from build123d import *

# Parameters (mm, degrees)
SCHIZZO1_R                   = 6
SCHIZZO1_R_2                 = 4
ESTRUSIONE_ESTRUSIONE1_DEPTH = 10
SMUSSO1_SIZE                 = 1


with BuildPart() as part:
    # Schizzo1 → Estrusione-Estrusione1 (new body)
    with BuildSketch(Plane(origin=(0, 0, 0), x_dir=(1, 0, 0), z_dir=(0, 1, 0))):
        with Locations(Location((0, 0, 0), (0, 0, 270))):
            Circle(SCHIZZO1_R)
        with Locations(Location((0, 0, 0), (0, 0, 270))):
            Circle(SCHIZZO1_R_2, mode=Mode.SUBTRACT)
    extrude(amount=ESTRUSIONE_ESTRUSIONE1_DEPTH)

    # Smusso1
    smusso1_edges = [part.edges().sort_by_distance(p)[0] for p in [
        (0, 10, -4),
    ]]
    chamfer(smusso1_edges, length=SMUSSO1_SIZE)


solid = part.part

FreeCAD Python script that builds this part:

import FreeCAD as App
import Part
import Sketcher

V = App.Vector
Q = App.Units.Quantity


def edges_at(feature, points):
    """Names of the edges that pass closest to the given points."""
    edges = feature.Shape.Edges
    near = lambda p: min(range(len(edges)), key=lambda i: edges[i].distToShape(Part.Vertex(*p))[0])
    return sorted({f"Edge{near(p) + 1}" for p in points})

doc = App.newDocument("Part")
body = doc.addObject("PartDesign::Body", "Body")

sketch1 = body.newObject("Sketcher::SketchObject", "Sketch")
sketch1.AttachmentSupport = (doc.getObject("XZ_Plane"), [""])
sketch1.MapMode = "FlatFace"
sketch1.addGeometry([
    Part.Circle(V(0, 0, 0), V(0, 0, 1), 6),
    Part.Circle(V(0, 0, 0), V(0, 0, 1), 4),
], False)
sketch1.addConstraint([
    Sketcher.Constraint("Coincident", 0, 3, -1, 1),
    Sketcher.Constraint("Coincident", 1, 3, -1, 1),
    Sketcher.Constraint("Diameter", 0, Q("12 mm")),
    Sketcher.Constraint("Diameter", 1, Q("8 mm")),
])
pad1 = body.newObject("PartDesign::Pad", "Pad")
pad1.Profile = sketch1
pad1.Length = 10
pad1.Reversed = True
doc.recompute()

chamfer = body.newObject("PartDesign::Chamfer", "Chamfer")
chamfer.Base = (pad1, edges_at(pad1, [(0, 10, -4)]))
chamfer.Size = 1

doc.recompute()
